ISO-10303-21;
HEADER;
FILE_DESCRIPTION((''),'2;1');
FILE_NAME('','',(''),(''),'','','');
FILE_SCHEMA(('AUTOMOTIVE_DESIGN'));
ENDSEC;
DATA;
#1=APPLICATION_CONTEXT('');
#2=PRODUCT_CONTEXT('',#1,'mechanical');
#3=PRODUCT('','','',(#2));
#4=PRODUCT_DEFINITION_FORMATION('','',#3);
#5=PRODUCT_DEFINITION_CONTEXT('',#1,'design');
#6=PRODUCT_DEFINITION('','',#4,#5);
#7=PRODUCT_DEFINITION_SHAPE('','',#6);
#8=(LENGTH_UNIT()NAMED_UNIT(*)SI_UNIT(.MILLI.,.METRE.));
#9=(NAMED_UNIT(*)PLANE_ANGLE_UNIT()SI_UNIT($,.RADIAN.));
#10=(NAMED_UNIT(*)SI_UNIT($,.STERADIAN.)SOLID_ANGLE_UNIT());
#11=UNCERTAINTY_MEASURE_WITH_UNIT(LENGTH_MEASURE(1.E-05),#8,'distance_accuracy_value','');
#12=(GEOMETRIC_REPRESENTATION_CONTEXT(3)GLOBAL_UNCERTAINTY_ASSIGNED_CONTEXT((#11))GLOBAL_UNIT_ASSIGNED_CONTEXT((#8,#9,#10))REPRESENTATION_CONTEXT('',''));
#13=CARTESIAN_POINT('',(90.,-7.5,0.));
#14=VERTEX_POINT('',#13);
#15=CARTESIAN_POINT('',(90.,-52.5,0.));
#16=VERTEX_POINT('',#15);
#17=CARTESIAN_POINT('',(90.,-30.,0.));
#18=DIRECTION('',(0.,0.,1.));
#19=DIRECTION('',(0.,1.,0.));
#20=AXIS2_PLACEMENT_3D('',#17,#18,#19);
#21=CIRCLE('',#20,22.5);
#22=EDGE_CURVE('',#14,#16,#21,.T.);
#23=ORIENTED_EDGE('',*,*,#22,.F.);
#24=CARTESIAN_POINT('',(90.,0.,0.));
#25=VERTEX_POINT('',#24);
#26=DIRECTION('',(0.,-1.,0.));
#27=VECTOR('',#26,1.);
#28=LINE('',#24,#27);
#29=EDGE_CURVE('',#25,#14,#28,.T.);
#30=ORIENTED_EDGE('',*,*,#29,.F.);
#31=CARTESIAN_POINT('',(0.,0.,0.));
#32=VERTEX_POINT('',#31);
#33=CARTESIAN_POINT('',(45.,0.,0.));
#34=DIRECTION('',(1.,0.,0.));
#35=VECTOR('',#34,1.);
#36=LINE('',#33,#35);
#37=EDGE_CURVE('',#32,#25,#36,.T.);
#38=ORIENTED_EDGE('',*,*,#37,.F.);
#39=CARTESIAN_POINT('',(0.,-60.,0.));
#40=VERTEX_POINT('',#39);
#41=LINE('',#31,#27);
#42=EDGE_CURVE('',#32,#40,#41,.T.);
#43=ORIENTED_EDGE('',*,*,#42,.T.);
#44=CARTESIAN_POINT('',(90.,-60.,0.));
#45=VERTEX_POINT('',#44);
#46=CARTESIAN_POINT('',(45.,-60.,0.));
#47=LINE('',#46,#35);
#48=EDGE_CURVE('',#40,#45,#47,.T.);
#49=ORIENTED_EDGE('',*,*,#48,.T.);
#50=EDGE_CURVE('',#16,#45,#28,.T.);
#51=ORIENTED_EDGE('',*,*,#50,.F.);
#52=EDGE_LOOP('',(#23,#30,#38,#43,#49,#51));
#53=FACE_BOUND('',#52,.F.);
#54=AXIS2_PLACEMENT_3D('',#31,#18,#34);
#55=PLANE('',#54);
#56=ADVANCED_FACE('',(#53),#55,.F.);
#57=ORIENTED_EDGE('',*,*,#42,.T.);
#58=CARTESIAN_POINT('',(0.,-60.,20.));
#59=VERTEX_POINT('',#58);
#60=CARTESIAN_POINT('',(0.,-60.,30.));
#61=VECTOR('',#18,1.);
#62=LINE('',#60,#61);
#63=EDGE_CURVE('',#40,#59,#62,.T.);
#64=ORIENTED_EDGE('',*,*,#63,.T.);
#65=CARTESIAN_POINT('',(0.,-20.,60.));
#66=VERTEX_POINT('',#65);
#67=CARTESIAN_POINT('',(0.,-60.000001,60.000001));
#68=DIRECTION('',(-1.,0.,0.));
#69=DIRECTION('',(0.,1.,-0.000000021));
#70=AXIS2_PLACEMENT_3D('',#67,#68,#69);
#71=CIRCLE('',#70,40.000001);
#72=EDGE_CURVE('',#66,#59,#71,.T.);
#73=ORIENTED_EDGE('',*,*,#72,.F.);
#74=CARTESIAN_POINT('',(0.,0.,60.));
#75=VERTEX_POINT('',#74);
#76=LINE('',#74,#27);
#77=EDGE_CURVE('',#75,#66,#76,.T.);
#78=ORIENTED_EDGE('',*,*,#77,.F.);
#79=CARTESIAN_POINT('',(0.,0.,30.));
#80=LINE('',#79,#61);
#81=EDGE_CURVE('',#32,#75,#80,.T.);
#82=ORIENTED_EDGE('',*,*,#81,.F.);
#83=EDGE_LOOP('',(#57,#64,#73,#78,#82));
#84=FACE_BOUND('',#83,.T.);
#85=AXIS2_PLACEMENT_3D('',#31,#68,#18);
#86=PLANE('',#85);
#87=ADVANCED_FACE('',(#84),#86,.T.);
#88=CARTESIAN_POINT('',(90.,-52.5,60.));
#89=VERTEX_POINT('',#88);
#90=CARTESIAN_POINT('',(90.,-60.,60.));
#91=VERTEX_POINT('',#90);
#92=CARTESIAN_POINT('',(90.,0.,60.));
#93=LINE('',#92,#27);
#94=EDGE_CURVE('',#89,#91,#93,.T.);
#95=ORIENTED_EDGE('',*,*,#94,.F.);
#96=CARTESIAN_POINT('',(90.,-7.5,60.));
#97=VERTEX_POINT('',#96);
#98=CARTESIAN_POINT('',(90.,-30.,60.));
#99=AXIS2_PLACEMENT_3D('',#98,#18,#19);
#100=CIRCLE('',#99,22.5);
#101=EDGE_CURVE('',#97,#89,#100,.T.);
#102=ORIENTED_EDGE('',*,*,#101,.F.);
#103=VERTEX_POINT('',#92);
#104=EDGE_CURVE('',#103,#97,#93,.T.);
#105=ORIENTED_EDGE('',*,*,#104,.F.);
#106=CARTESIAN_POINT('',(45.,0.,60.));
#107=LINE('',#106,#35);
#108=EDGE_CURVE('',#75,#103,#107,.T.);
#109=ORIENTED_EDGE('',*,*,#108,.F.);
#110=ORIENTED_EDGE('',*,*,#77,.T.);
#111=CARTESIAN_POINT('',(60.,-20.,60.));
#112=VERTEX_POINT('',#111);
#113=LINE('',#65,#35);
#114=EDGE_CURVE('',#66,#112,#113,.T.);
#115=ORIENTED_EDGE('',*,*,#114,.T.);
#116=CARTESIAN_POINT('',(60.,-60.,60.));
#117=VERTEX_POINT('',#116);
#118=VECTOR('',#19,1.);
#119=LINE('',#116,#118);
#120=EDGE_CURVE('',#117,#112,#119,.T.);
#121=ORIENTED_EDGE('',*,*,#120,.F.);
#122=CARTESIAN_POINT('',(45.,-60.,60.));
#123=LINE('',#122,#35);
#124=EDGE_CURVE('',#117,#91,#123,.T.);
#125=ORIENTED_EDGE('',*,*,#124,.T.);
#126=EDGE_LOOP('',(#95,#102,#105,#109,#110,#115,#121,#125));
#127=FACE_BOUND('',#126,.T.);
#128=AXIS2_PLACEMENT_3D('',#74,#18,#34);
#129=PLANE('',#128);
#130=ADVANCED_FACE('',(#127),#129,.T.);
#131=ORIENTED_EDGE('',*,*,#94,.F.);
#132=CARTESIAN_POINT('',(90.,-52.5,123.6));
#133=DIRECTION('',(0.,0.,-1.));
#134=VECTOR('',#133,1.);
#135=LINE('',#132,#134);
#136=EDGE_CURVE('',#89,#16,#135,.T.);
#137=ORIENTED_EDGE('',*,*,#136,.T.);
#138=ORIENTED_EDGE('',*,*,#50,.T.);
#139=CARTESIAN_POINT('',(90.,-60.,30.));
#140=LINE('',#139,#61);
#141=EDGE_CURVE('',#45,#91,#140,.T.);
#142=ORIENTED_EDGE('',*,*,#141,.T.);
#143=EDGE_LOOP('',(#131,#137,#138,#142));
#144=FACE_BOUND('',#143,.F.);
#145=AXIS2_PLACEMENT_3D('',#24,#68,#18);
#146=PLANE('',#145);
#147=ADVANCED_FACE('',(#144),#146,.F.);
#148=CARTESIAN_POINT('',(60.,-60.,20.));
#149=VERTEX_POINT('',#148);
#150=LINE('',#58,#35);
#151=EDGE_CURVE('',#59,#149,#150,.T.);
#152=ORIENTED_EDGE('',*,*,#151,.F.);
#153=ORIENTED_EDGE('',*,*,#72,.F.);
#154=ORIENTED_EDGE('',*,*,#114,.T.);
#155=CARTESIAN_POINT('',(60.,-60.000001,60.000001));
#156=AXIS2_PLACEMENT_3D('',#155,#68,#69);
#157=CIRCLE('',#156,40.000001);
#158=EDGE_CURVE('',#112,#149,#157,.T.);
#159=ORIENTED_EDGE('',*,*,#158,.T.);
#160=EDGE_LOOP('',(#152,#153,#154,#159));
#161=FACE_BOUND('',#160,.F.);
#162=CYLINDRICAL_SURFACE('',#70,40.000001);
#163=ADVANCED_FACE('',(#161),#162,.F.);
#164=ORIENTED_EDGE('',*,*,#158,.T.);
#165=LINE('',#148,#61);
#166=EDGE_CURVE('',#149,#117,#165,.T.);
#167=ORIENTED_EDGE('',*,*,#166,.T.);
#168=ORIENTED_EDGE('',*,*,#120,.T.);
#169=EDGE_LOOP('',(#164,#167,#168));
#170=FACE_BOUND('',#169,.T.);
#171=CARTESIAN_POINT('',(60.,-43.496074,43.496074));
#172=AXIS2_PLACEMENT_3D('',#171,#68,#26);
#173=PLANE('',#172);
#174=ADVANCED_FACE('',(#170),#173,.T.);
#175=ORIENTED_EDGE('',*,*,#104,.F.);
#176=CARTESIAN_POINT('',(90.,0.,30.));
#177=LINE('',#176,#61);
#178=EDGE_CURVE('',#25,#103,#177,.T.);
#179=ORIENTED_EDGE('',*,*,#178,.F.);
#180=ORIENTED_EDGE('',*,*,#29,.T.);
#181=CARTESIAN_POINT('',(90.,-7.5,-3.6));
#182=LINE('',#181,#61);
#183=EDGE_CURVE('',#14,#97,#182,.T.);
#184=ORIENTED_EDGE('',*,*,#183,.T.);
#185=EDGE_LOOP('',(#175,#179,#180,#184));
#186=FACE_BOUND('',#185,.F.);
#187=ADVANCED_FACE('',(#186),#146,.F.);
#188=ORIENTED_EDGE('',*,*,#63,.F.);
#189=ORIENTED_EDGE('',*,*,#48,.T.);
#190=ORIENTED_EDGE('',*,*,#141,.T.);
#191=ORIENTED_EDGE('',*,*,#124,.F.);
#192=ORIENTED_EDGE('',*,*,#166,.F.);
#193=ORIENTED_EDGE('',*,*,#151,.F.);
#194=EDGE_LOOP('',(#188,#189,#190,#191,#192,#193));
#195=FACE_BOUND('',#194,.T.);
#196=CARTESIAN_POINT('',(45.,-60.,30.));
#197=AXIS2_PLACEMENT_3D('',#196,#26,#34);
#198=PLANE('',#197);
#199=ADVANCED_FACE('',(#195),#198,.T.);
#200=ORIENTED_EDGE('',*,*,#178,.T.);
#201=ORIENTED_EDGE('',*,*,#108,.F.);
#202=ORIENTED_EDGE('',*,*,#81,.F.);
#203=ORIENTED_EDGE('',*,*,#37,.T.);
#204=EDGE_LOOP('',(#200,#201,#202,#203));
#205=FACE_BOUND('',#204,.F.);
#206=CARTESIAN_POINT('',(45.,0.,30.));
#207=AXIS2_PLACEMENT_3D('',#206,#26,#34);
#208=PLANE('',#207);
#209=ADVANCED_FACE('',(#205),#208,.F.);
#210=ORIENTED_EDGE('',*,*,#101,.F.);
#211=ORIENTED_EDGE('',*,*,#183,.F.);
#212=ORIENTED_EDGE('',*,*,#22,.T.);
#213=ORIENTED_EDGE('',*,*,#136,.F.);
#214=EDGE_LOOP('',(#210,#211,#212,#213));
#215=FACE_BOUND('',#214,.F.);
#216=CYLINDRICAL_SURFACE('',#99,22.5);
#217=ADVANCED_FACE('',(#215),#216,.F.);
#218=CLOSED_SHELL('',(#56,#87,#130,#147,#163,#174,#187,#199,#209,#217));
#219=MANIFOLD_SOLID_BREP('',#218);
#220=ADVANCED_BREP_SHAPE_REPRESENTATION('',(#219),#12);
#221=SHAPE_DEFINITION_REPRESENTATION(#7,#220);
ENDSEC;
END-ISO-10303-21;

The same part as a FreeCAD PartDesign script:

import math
import FreeCAD as App
import Part
import Sketcher

doc = App.newDocument("Part")
params = doc.addObject("Spreadsheet::Sheet", "Params")
for row, (alias, value) in enumerate([
    ("sketch1_width", "90 mm"),
    ("sketch1_height", "60 mm"),
    ("pad1_length", "60 mm"),
    ("sketch2_radius", "22.5 mm"),
    ("pocket1_length", "127.2 mm"),
    ("sketch3_radius", "40.000001 mm"),
    ("pocket2_length", "60 mm"),
], start=1):
    params.set(f"A{row}", alias)
    params.set(f"B{row}", "=" + value)
    params.setAlias(f"B{row}", alias)

body = doc.addObject("PartDesign::Body", "Body")

# Sketch on XZ plane
sketch1 = doc.addObject("Sketcher::SketchObject", "Sketch")
body.addObject(sketch1)
sketch1.AttachmentSupport = (doc.XZ_Plane, [""])
sketch1.MapMode = "FlatFace"
sketch1.addGeometry([
    Part.LineSegment(App.Vector(0, 60, 0), App.Vector(0, 0, 0)),
    Part.LineSegment(App.Vector(0, 0, 0), App.Vector(90, 0, 0)),
    Part.LineSegment(App.Vector(90, 0, 0), App.Vector(90, 60, 0)),
    Part.LineSegment(App.Vector(90, 60, 0), App.Vector(0, 60, 0)),
], False)
sketch1.addConstraint([
    Sketcher.Constraint("Coincident", 0, 2, 1, 1),
    Sketcher.Constraint("Coincident", 1, 2, 2, 1),
    Sketcher.Constraint("Coincident", 2, 2, 3, 1),
    Sketcher.Constraint("Coincident", 3, 2, 0, 1),
    Sketcher.Constraint("Vertical", 0),
    Sketcher.Constraint("Horizontal", 1),
    Sketcher.Constraint("Vertical", 2),
    Sketcher.Constraint("Horizontal", 3),
    Sketcher.Constraint("Coincident", 0, 2, -1, 1),
    Sketcher.Constraint("DistanceX", 1, 1, 1, 2, 90.0),
    Sketcher.Constraint("DistanceY", 0, 2, 0, 1, 60.0),
])
sketch1.setExpression("Constraints[9]", "Params.sketch1_width")
sketch1.setExpression("Constraints[10]", "Params.sketch1_height")
pad1 = doc.addObject("PartDesign::Pad", "Pad")
body.addObject(pad1)
pad1.Profile = sketch1
pad1.setExpression("Length", "Params.pad1_length")

# Sketch on XY plane
sketch2 = doc.addObject("Sketcher::SketchObject", "Sketch001")
body.addObject(sketch2)
sketch2.AttachmentSupport = (doc.XY_Plane, [""])
sketch2.MapMode = "FlatFace"
sketch2.AttachmentOffset = App.Placement(App.Vector(0, 0, 60), App.Rotation())
sketch2.addGeometry([
    Part.LineSegment(App.Vector(90, -52.5, 0), App.Vector(90, -7.5, 0)),
    Part.ArcOfCircle(Part.Circle(App.Vector(90, -30, 0), App.Vector(0, 0, 1), 22.5), math.radians(90), math.radians(270)),
], False)
sketch2.addConstraint([
    Sketcher.Constraint("Coincident", 0, 1, 1, 2),
    Sketcher.Constraint("Coincident", 1, 1, 0, 2),
    Sketcher.Constraint("Vertical", 0),
    Sketcher.Constraint("Vertical", 1, 3, 0, 1),
    Sketcher.Constraint("Radius", 1, 22.5),
    Sketcher.Constraint("DistanceX", -1, 1, 1, 3, 90.0),
    Sketcher.Constraint("DistanceY", 1, 3, -1, 1, 30.0),
])
sketch2.setExpression("Constraints[4]", "Params.sketch2_radius")
pocket1 = doc.addObject("PartDesign::Pocket", "Pocket")
body.addObject(pocket1)
pocket1.Profile = sketch2
pocket1.setExpression("Length", "Params.pocket1_length")
pocket1.Midplane = True

# Sketch on YZ plane
sketch3 = doc.addObject("Sketcher::SketchObject", "Sketch002")
body.addObject(sketch3)
sketch3.AttachmentSupport = (doc.YZ_Plane, [""])
sketch3.MapMode = "FlatFace"
sketch3.addGeometry([
    Part.LineSegment(App.Vector(-60, 60, 0), App.Vector(-20, 60, 0)),
    Part.ArcOfCircle(Part.Circle(App.Vector(-60.000001, 60.000001, 0), App.Vector(0, 0, 1), 40.000001), math.radians(-89.999999), math.radians(-0.000001)),
    Part.LineSegment(App.Vector(-60, 20, 0), App.Vector(-60, 60, 0)),
], False)
sketch3.addConstraint([
    Sketcher.Constraint("Coincident", 0, 2, 1, 2),
    Sketcher.Constraint("Coincident", 1, 1, 2, 1),
    Sketcher.Constraint("Coincident", 2, 2, 0, 1),
    Sketcher.Constraint("Horizontal", 0),
    Sketcher.Constraint("Vertical", 2),
    Sketcher.Constraint("Coincident", 2, 2, 1, 3),
    Sketcher.Constraint("Radius", 1, 40.000001),
    Sketcher.Constraint("DistanceX", 1, 3, -1, 1, 60.000001),
    Sketcher.Constraint("DistanceY", -1, 1, 1, 3, 60.000001),
])
sketch3.setExpression("Constraints[6]", "Params.sketch3_radius")
pocket2 = doc.addObject("PartDesign::Pocket", "Pocket001")
body.addObject(pocket2)
pocket2.Profile = sketch3
pocket2.setExpression("Length", "Params.pocket2_length")
pocket2.Reversed = True

doc.recompute()
